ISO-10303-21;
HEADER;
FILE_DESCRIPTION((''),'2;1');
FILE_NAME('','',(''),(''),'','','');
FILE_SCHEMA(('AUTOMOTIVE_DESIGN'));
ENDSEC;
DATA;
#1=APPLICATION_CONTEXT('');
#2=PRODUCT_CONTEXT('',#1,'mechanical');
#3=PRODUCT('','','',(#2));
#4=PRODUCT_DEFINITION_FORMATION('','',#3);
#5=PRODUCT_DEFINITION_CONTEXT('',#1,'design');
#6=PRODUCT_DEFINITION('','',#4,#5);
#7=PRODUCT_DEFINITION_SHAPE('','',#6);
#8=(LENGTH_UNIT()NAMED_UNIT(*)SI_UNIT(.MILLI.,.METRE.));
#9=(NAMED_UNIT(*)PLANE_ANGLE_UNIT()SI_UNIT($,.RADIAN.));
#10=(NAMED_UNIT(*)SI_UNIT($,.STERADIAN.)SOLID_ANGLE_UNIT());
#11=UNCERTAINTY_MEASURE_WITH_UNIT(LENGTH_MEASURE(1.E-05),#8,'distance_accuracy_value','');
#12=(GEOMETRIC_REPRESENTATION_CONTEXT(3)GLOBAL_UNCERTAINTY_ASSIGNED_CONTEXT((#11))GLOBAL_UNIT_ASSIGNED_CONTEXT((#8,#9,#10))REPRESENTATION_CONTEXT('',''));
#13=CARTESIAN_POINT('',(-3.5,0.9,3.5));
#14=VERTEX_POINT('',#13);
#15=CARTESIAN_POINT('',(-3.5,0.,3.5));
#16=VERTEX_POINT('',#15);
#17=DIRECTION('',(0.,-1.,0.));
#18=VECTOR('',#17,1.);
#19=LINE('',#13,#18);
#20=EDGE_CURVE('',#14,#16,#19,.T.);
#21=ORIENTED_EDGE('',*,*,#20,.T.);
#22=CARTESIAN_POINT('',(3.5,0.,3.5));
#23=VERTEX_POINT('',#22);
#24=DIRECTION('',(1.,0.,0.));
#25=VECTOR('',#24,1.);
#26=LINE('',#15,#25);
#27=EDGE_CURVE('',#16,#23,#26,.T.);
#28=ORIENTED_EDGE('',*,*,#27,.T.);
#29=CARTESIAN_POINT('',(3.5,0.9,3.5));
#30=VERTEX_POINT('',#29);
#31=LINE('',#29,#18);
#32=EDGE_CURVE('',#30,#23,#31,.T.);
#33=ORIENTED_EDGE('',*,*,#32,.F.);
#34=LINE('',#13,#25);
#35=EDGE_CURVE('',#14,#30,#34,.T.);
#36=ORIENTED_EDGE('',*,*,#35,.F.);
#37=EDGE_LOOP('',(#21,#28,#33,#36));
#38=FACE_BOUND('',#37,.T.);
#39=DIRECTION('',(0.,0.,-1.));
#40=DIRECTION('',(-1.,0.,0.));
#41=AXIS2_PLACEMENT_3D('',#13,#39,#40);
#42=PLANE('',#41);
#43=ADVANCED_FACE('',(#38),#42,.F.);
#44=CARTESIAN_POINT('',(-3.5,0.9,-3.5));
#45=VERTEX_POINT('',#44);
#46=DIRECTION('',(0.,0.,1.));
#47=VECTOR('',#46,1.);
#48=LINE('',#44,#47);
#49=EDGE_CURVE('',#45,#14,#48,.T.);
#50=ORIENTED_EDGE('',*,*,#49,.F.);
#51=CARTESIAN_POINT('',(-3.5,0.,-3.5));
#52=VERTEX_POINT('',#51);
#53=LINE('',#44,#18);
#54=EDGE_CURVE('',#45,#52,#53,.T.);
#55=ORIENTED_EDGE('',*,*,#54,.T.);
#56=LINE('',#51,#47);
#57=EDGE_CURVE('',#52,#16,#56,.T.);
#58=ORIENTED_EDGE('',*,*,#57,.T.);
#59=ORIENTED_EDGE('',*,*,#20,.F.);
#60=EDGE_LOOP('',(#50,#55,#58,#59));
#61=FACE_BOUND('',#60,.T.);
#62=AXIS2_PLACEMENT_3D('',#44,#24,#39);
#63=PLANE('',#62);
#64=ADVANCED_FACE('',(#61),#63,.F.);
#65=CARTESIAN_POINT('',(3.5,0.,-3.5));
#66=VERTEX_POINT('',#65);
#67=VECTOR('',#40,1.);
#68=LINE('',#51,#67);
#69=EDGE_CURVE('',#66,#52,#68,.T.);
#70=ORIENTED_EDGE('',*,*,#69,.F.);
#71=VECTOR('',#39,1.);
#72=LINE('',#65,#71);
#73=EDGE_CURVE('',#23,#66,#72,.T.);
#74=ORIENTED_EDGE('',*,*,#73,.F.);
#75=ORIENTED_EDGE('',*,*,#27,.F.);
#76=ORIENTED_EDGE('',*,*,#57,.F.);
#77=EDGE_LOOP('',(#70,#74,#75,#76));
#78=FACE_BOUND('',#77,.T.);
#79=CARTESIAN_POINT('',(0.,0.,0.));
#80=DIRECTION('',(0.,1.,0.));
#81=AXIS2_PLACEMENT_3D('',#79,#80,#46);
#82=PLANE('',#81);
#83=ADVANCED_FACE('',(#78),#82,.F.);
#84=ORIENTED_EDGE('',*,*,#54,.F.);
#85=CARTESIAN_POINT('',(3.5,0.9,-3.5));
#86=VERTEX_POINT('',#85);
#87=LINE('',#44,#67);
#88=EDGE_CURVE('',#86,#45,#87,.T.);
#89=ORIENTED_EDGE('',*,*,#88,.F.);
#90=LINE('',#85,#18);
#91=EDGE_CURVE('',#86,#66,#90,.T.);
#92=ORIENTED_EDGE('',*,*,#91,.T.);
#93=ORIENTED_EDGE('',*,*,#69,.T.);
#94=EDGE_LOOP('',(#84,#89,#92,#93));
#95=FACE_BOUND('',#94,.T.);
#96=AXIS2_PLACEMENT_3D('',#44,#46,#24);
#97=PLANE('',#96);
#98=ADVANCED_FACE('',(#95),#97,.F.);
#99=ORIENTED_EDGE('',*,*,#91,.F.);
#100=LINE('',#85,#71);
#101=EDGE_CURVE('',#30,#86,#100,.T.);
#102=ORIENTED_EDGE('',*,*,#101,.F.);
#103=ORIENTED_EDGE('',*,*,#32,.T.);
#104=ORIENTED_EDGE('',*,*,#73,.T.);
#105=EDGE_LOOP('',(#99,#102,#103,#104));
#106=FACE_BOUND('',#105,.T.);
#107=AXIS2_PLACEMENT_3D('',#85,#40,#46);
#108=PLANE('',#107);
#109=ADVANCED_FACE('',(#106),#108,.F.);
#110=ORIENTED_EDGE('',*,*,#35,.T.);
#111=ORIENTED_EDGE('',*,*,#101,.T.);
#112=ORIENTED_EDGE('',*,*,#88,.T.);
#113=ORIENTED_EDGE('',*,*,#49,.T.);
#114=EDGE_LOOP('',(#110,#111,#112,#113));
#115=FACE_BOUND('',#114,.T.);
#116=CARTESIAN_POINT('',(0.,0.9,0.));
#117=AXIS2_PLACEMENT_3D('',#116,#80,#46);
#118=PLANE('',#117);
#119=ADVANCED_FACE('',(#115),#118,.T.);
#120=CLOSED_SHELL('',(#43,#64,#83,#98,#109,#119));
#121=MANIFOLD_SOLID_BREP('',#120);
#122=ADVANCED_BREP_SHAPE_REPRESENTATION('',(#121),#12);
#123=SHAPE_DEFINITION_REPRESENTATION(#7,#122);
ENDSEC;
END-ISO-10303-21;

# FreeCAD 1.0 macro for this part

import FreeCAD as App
import Part
import Sketcher
Q = App.Units.Quantity

doc = App.newDocument("Part")
body = doc.addObject("PartDesign::Body", "Body")

# Sketch on XZ plane
sketch1 = body.newObject("Sketcher::SketchObject", "Sketch")
sketch1.AttachmentSupport = (doc.getObject("XZ_Plane"), [""])
sketch1.MapMode = "FlatFace"
sketch1.addGeometry(Part.LineSegment(App.Vector(-3.5, -3.5, 0), App.Vector(-3.5, 3.5, 0)), False)
sketch1.addGeometry(Part.LineSegment(App.Vector(-3.5, 3.5, 0), App.Vector(3.5, 3.5, 0)), False)
sketch1.addGeometry(Part.LineSegment(App.Vector(3.5, 3.5, 0), App.Vector(3.5, -3.5, 0)), False)
sketch1.addGeometry(Part.LineSegment(App.Vector(3.5, -3.5, 0), App.Vector(-3.5, -3.5, 0)), False)
sketch1.addConstraint(Sketcher.Constraint("Coincident", 0, 2, 1, 1))
sketch1.addConstraint(Sketcher.Constraint("Coincident", 1, 2, 2, 1))
sketch1.addConstraint(Sketcher.Constraint("Coincident", 2, 2, 3, 1))
sketch1.addConstraint(Sketcher.Constraint("Coincident", 3, 2, 0, 1))
sketch1.addConstraint(Sketcher.Constraint("Vertical", 0))
sketch1.addConstraint(Sketcher.Constraint("Horizontal", 1))
sketch1.addConstraint(Sketcher.Constraint("Vertical", 2))
sketch1.addConstraint(Sketcher.Constraint("Horizontal", 3))
sketch1.addConstraint(Sketcher.Constraint("Symmetric", 0, 2, 2, 2, -1, 1))
sketch1.addConstraint(Sketcher.Constraint("Equal", 3, 0))
sketch1.addConstraint(Sketcher.Constraint("DistanceX", 1, 1, 1, 2, Q("7 mm")))
pad1 = body.newObject("PartDesign::Pad", "Pad")
pad1.Profile = sketch1
pad1.Length = 0.9
pad1.Reversed = True

doc.recompute()
